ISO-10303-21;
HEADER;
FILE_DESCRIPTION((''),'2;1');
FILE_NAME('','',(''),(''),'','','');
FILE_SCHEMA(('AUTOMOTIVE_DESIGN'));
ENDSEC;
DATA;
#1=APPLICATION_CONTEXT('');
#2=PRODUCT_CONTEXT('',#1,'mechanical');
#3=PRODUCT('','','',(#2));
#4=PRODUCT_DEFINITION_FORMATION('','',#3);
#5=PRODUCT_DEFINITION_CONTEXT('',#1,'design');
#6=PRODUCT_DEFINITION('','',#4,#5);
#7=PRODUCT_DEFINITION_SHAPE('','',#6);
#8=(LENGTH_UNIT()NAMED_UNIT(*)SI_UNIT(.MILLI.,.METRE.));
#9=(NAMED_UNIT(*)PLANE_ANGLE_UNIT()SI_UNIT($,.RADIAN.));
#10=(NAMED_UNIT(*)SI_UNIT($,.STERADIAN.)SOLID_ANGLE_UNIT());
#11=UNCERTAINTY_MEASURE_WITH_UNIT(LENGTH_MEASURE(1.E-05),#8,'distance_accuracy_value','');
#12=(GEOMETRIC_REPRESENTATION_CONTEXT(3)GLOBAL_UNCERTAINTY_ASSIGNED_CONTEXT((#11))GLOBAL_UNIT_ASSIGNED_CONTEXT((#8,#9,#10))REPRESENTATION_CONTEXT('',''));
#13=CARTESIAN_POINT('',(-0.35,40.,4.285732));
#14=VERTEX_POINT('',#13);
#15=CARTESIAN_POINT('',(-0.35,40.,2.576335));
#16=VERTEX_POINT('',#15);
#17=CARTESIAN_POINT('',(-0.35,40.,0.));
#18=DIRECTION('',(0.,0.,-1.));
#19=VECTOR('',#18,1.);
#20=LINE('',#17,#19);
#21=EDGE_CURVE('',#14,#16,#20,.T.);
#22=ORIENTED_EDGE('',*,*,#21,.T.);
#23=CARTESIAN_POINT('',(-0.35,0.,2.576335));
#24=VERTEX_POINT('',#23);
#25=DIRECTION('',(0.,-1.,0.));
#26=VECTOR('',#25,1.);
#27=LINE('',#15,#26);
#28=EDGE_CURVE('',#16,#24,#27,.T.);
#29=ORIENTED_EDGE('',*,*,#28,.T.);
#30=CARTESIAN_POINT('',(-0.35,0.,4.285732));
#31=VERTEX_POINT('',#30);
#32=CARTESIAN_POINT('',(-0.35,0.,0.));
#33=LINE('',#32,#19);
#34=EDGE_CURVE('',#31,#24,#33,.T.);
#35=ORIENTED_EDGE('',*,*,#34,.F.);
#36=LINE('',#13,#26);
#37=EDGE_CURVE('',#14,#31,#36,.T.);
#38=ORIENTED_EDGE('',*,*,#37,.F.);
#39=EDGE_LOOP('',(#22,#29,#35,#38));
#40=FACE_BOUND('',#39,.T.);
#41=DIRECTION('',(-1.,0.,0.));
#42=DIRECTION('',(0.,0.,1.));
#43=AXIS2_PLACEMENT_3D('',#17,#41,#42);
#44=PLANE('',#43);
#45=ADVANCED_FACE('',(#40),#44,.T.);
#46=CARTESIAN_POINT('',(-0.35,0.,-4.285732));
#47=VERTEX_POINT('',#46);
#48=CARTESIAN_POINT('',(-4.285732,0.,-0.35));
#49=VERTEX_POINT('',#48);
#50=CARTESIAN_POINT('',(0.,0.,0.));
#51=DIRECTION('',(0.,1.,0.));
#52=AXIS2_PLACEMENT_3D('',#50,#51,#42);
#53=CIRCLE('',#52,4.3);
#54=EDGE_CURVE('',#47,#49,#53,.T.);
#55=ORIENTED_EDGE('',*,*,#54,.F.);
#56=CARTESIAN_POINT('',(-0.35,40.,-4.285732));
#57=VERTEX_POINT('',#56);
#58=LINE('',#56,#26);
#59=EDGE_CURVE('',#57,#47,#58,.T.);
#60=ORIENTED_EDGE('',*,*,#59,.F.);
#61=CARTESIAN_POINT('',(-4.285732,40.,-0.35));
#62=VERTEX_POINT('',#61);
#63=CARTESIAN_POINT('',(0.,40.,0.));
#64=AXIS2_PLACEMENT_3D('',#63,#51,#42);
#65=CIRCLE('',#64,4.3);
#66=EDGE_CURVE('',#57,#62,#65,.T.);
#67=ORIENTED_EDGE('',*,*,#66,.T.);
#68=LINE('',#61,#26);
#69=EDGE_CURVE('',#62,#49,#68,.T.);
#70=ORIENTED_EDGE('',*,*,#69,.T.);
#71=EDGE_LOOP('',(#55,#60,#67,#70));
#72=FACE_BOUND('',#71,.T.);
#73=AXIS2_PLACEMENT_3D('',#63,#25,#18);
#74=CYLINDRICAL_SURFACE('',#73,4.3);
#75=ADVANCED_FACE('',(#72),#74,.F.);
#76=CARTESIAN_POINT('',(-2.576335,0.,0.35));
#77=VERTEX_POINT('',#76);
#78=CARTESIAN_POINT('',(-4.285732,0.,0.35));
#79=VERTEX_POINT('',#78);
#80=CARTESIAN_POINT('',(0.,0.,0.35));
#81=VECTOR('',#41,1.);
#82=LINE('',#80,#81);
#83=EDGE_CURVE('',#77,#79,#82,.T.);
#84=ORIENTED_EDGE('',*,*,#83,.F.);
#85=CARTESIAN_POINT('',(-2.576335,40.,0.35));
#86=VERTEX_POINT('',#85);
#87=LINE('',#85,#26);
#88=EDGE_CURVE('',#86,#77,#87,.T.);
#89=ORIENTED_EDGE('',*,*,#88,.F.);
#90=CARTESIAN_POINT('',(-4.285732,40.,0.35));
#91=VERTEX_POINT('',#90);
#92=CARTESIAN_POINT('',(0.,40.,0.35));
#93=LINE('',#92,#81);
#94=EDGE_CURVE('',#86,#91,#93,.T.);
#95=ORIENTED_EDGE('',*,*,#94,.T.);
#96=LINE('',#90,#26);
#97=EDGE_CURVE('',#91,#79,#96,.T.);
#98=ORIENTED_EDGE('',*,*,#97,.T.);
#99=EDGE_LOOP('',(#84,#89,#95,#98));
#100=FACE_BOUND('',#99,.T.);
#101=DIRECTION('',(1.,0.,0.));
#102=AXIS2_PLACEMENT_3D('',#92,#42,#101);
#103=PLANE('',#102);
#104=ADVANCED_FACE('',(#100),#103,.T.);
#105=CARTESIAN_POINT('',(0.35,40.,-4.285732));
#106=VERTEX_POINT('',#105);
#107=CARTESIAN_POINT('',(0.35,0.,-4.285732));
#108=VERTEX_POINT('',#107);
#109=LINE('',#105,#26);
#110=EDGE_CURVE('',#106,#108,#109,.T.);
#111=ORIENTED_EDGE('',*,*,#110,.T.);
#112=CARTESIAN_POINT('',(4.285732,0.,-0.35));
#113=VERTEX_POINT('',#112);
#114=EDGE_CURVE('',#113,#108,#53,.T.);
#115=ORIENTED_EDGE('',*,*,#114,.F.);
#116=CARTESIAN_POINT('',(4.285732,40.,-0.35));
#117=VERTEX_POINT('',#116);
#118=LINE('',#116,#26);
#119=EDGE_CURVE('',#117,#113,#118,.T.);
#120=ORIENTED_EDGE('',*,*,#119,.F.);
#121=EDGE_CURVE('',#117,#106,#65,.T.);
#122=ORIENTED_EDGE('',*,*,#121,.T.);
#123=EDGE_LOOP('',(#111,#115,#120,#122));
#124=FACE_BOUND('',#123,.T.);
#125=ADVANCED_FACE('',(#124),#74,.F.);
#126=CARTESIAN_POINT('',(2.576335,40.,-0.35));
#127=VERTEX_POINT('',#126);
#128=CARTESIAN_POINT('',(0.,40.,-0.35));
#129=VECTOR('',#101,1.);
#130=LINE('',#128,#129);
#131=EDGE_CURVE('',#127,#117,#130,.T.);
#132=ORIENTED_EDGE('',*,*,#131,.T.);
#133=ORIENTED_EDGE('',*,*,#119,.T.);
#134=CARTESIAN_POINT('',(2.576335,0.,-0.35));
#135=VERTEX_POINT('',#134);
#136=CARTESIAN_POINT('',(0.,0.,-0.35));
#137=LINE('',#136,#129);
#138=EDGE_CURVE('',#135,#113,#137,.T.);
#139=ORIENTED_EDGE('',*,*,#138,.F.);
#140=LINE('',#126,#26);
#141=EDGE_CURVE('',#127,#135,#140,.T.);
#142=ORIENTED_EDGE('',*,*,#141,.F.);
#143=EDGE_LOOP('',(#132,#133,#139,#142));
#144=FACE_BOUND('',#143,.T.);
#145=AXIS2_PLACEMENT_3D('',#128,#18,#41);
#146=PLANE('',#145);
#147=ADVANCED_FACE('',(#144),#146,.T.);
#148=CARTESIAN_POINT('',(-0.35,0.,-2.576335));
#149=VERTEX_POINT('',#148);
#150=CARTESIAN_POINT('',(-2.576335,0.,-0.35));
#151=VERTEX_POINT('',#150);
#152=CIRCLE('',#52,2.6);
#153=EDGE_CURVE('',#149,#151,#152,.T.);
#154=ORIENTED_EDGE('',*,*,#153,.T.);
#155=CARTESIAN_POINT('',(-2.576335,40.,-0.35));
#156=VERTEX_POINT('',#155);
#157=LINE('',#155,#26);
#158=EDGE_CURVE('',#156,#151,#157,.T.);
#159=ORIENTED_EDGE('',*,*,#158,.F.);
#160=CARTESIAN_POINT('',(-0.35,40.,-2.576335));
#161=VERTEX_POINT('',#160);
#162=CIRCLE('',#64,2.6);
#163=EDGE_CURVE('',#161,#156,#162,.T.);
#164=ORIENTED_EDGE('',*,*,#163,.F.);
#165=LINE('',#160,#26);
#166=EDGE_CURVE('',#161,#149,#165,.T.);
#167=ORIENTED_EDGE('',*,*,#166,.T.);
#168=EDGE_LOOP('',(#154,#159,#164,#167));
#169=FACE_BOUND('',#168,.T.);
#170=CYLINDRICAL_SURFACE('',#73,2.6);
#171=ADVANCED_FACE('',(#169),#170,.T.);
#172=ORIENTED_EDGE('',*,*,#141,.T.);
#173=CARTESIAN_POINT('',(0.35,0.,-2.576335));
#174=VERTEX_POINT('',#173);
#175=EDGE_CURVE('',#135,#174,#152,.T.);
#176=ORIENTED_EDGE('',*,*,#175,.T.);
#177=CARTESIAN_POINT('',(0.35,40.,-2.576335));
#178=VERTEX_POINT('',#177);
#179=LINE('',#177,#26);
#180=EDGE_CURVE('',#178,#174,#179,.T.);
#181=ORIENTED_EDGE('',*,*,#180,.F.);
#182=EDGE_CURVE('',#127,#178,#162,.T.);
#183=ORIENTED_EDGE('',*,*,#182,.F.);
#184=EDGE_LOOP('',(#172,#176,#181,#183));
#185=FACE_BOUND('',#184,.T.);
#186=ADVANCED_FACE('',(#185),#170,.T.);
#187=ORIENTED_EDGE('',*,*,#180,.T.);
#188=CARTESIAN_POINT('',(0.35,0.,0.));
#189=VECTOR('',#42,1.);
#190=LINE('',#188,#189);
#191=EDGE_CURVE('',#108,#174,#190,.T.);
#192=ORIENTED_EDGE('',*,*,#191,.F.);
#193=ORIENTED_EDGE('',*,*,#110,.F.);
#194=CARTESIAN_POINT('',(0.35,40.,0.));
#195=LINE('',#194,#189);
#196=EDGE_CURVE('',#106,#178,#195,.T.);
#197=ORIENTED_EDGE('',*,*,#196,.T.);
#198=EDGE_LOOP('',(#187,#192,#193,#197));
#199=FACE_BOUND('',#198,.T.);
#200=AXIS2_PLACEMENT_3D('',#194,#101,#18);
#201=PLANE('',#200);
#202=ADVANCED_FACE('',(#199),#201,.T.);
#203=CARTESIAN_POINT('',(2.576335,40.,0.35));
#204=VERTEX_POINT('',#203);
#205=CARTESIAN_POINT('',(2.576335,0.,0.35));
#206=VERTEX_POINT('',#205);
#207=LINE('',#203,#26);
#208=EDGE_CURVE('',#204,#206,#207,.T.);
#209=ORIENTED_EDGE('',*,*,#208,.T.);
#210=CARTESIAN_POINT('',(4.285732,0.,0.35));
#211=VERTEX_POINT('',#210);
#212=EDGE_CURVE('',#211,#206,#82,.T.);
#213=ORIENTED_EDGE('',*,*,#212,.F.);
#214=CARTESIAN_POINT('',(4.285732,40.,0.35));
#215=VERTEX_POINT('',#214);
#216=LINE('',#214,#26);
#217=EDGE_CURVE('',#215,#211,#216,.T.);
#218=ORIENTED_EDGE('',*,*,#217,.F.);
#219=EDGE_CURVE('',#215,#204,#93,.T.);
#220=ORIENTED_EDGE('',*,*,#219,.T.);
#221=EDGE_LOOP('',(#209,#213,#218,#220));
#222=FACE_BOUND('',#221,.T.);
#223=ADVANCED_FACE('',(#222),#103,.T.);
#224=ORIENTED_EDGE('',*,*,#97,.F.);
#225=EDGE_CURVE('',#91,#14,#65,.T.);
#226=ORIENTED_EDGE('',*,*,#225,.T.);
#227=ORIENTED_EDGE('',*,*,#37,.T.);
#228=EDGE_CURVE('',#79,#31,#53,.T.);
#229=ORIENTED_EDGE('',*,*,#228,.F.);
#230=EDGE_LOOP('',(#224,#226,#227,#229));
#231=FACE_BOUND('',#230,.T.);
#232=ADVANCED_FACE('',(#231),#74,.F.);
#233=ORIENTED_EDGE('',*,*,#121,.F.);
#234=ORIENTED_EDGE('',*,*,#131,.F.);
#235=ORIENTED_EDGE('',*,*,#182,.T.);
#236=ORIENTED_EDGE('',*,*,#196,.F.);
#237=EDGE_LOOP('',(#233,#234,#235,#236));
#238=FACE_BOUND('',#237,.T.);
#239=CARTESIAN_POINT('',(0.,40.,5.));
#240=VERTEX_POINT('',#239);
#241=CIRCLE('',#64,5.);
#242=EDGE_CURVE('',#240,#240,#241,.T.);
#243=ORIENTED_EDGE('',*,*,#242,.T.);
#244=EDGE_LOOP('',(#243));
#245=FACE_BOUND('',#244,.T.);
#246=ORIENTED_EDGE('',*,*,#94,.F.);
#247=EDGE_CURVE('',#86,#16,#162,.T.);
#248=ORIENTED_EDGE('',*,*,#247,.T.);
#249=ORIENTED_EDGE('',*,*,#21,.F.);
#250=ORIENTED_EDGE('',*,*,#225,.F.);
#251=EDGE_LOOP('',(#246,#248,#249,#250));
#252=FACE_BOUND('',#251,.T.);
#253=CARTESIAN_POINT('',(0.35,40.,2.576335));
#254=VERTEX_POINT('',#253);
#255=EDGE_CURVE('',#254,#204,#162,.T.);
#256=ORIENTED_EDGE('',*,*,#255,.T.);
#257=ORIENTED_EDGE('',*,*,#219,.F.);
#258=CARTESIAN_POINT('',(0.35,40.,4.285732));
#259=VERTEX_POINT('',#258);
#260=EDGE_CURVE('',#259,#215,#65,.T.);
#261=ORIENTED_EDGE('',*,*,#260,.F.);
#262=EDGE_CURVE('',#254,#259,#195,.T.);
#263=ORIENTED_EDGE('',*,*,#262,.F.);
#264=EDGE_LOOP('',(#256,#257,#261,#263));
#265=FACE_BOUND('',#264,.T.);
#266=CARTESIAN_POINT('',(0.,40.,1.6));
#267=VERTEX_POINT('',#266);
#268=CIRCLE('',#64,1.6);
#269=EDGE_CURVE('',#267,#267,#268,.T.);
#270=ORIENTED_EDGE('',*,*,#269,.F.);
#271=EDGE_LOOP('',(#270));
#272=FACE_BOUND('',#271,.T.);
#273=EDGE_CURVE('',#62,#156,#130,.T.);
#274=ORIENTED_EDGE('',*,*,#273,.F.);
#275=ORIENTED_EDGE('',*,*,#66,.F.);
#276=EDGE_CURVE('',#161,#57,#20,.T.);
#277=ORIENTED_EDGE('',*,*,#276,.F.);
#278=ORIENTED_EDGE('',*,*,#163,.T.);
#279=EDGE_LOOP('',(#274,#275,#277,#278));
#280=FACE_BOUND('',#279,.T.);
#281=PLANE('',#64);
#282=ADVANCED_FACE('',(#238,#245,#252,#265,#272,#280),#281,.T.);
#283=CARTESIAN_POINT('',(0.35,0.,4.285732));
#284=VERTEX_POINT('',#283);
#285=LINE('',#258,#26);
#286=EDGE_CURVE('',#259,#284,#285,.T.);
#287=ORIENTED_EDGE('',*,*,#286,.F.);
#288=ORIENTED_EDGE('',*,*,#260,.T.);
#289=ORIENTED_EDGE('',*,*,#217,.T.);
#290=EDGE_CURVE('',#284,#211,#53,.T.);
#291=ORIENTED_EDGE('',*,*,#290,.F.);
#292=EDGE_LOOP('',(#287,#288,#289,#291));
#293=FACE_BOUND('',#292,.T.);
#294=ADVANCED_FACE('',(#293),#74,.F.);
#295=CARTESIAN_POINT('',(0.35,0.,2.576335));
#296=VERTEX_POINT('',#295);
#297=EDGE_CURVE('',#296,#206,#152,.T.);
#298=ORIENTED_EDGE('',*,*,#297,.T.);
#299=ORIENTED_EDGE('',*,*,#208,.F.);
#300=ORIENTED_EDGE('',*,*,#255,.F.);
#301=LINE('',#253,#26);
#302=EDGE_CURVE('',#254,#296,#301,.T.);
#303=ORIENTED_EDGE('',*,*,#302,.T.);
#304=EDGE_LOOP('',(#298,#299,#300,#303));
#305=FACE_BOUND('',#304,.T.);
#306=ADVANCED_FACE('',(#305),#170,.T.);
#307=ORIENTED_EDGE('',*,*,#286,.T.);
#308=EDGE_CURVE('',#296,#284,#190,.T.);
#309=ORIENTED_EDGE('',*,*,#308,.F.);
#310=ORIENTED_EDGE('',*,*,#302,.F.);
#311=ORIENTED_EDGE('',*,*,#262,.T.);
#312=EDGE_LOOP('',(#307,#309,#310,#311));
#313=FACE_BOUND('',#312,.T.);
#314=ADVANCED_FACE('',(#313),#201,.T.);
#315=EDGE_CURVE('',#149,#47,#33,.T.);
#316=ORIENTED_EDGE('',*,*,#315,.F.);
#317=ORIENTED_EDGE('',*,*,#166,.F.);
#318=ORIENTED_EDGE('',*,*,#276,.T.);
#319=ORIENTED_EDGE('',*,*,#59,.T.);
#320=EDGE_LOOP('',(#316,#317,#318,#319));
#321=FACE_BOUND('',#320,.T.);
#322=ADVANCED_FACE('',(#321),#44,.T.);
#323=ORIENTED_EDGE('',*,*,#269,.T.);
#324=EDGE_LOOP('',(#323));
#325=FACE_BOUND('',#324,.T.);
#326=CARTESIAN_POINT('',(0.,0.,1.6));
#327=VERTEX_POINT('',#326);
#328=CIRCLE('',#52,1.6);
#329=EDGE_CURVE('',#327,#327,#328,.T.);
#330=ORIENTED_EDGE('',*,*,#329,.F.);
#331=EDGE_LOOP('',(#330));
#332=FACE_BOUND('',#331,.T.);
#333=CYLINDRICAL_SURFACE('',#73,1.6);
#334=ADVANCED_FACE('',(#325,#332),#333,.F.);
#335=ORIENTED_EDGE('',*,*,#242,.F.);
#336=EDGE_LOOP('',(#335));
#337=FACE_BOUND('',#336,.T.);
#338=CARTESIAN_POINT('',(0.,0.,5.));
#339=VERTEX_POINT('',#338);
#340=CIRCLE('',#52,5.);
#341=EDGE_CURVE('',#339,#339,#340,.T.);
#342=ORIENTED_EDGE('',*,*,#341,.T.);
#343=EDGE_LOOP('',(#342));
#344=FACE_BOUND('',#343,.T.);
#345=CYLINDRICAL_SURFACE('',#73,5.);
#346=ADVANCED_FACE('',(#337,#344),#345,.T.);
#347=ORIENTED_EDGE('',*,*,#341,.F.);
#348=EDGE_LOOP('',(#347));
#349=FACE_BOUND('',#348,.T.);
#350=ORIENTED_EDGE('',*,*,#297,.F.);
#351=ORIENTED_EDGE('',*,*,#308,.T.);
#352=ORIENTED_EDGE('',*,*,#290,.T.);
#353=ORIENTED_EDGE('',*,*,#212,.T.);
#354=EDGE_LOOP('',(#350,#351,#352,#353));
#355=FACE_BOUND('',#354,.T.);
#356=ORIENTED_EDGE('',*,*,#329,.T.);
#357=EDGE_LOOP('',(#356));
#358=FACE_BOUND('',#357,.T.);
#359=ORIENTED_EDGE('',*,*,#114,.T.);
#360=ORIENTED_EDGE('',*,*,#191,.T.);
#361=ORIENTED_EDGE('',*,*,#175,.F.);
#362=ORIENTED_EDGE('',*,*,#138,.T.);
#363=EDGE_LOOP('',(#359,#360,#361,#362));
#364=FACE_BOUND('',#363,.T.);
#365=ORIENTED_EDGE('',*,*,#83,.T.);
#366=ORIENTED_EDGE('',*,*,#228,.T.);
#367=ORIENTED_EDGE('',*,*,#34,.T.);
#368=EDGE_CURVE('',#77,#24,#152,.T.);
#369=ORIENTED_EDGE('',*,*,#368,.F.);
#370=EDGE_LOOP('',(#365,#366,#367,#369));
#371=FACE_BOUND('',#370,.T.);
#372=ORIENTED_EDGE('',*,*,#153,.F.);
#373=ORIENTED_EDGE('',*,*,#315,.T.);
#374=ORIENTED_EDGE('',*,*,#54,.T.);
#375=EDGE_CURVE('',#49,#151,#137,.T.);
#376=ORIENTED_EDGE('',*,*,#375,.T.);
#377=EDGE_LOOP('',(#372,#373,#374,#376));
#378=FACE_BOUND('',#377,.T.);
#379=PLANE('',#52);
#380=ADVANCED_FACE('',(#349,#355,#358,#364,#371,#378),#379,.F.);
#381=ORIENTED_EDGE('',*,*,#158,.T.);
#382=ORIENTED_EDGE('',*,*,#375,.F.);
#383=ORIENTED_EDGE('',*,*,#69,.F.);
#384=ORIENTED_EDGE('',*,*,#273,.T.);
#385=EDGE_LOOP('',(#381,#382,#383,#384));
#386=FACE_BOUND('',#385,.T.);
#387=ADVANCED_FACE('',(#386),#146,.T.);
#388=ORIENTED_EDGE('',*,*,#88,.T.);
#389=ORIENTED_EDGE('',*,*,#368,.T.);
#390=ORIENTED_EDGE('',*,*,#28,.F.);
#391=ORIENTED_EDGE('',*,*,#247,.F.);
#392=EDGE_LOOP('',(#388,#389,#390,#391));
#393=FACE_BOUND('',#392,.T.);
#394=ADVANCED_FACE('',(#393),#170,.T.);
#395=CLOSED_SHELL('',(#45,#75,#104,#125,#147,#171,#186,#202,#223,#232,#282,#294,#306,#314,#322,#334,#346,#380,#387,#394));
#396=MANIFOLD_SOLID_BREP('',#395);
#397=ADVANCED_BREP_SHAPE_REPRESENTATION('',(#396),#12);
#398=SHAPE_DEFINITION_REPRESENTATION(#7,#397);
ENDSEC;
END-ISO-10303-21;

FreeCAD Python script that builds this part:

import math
import FreeCAD as App
import Part
import Sketcher

V = App.Vector

doc = App.newDocument("Part")
body = doc.addObject("PartDesign::Body", "Body")

sketch1 = body.newObject("Sketcher::SketchObject", "Sketch")
sketch1.AttachmentSupport = (doc.getObject("XZ_Plane"), [""])
sketch1.MapMode = "FlatFace"
sketch1.addGeometry(Part.Circle(V(0, 0, 0), V(0, 0, 1), 5), False)
sketch1.addGeometry(Part.ArcOfCircle(Part.Circle(V(0, 0, 0), V(0, 0, 1), 4.3), math.radians(-175.331225), math.radians(-94.668775)), False)
sketch1.addGeometry(Part.LineSegment(V(-0.35, -4.285732, 0), V(-0.35, -2.576335, 0)), False)
sketch1.addGeometry(Part.ArcOfCircle(Part.Circle(V(0, 0, 0), V(0, 0, 1), 2.6), math.radians(-172.26362), math.radians(-97.73638)), False)
sketch1.addGeometry(Part.LineSegment(V(-2.576335, -0.35, 0), V(-4.285732, -0.35, 0)), False)
sketch1.addGeometry(Part.ArcOfCircle(Part.Circle(V(0, 0, 0), V(0, 0, 1), 4.3), math.radians(94.668775), math.radians(175.331225)), False)
sketch1.addGeometry(Part.LineSegment(V(-4.285732, 0.35, 0), V(-2.576335, 0.35, 0)), False)
sketch1.addGeometry(Part.ArcOfCircle(Part.Circle(V(0, 0, 0), V(0, 0, 1), 2.6), math.radians(97.73638), math.radians(172.26362)), False)
sketch1.addGeometry(Part.LineSegment(V(-0.35, 2.576335, 0), V(-0.35, 4.285732, 0)), False)
sketch1.addGeometry(Part.Circle(V(0, 0, 0), V(0, 0, 1), 1.6), False)
sketch1.addGeometry(Part.ArcOfCircle(Part.Circle(V(0, 0, 0), V(0, 0, 1), 4.3), math.radians(-85.331225), math.radians(-4.668775)), False)
sketch1.addGeometry(Part.LineSegment(V(4.285732, -0.35, 0), V(2.576335, -0.35, 0)), False)
sketch1.addGeometry(Part.ArcOfCircle(Part.Circle(V(0, 0, 0), V(0, 0, 1), 2.6), math.radians(-82.26362), math.radians(-7.73638)), False)
sketch1.addGeometry(Part.LineSegment(V(0.35, -2.576335, 0), V(0.35, -4.285732, 0)), False)
sketch1.addGeometry(Part.ArcOfCircle(Part.Circle(V(0, 0, 0), V(0, 0, 1), 4.3), math.radians(4.668775), math.radians(85.331225)), False)
sketch1.addGeometry(Part.LineSegment(V(0.35, 4.285732, 0), V(0.35, 2.576335, 0)), False)
sketch1.addGeometry(Part.ArcOfCircle(Part.Circle(V(0, 0, 0), V(0, 0, 1), 2.6), math.radians(7.73638), math.radians(82.26362)), False)
sketch1.addGeometry(Part.LineSegment(V(2.576335, 0.35, 0), V(4.285732, 0.35, 0)), False)
sketch1.addConstraint(Sketcher.Constraint("Coincident", 1, 2, 2, 1))
sketch1.addConstraint(Sketcher.Constraint("Coincident", 2, 2, 3, 2))
sketch1.addConstraint(Sketcher.Constraint("Coincident", 3, 1, 4, 1))
sketch1.addConstraint(Sketcher.Constraint("Coincident", 4, 2, 1, 1))
sketch1.addConstraint(Sketcher.Constraint("Coincident", 5, 2, 6, 1))
sketch1.addConstraint(Sketcher.Constraint("Coincident", 6, 2, 7, 2))
sketch1.addConstraint(Sketcher.Constraint("Coincident", 7, 1, 8, 1))
sketch1.addConstraint(Sketcher.Constraint("Coincident", 8, 2, 5, 1))
sketch1.addConstraint(Sketcher.Constraint("Coincident", 10, 2, 11, 1))
sketch1.addConstraint(Sketcher.Constraint("Coincident", 11, 2, 12, 2))
sketch1.addConstraint(Sketcher.Constraint("Coincident", 12, 1, 13, 1))
sketch1.addConstraint(Sketcher.Constraint("Coincident", 13, 2, 10, 1))
sketch1.addConstraint(Sketcher.Constraint("Coincident", 14, 2, 15, 1))
sketch1.addConstraint(Sketcher.Constraint("Coincident", 15, 2, 16, 2))
sketch1.addConstraint(Sketcher.Constraint("Coincident", 16, 1, 17, 1))
sketch1.addConstraint(Sketcher.Constraint("Coincident", 17, 2, 14, 1))
sketch1.addConstraint(Sketcher.Constraint("Vertical", 2))
sketch1.addConstraint(Sketcher.Constraint("Horizontal", 4))
sketch1.addConstraint(Sketcher.Constraint("Horizontal", 6))
sketch1.addConstraint(Sketcher.Constraint("Vertical", 8))
sketch1.addConstraint(Sketcher.Constraint("Horizontal", 11))
sketch1.addConstraint(Sketcher.Constraint("Vertical", 13))
sketch1.addConstraint(Sketcher.Constraint("Vertical", 15))
sketch1.addConstraint(Sketcher.Constraint("Horizontal", 17))
sketch1.addConstraint(Sketcher.Constraint("Coincident", 0, 3, -1, 1))
sketch1.addConstraint(Sketcher.Constraint("Coincident", 1, 3, -1, 1))
sketch1.addConstraint(Sketcher.Constraint("Coincident", 3, 3, -1, 1))
sketch1.addConstraint(Sketcher.Constraint("Coincident", 5, 3, -1, 1))
sketch1.addConstraint(Sketcher.Constraint("Coincident", 7, 3, -1, 1))
sketch1.addConstraint(Sketcher.Constraint("Coincident", 9, 3, -1, 1))
sketch1.addConstraint(Sketcher.Constraint("Coincident", 10, 3, -1, 1))
sketch1.addConstraint(Sketcher.Constraint("Coincident", 12, 3, -1, 1))
sketch1.addConstraint(Sketcher.Constraint("Coincident", 14, 3, -1, 1))
sketch1.addConstraint(Sketcher.Constraint("Coincident", 16, 3, -1, 1))
sketch1.addConstraint(Sketcher.Constraint("Equal", 1, 5))
sketch1.addConstraint(Sketcher.Constraint("Equal", 3, 7))
sketch1.addConstraint(Sketcher.Constraint("Equal", 5, 10))
sketch1.addConstraint(Sketcher.Constraint("Equal", 7, 12))
sketch1.addConstraint(Sketcher.Constraint("Equal", 10, 14))
sketch1.addConstraint(Sketcher.Constraint("Equal", 12, 16))
sketch1.addConstraint(Sketcher.Constraint("Horizontal", 4, 2, 10, 2))
sketch1.addConstraint(Sketcher.Constraint("Horizontal", 2, 2, 12, 1))
sketch1.addConstraint(Sketcher.Constraint("Horizontal", 8, 2, 14, 2))
sketch1.addConstraint(Sketcher.Constraint("Horizontal", 6, 2, 16, 1))
sketch1.addConstraint(Sketcher.Constraint("Vertical", 4, 2, 5, 2))
sketch1.addConstraint(Sketcher.Constraint("Vertical", 2, 2, 7, 1))
sketch1.addConstraint(Sketcher.Constraint("Equal", 17, 2))
sketch1.addConstraint(Sketcher.Constraint("Diameter", 0, 10.0))
sketch1.addConstraint(Sketcher.Constraint("Diameter", 9, 3.2))
sketch1.addConstraint(Sketcher.Constraint("Radius", 1, 4.3))
sketch1.addConstraint(Sketcher.Constraint("Radius", 3, 2.6))
sketch1.addConstraint(Sketcher.Constraint("DistanceY", 4, 2, 5, 2, 0.7))
pad1 = body.newObject("PartDesign::Pad", "Pad")
pad1.Profile = sketch1
pad1.Length = 40
pad1.Reversed = True

doc.recompute()
